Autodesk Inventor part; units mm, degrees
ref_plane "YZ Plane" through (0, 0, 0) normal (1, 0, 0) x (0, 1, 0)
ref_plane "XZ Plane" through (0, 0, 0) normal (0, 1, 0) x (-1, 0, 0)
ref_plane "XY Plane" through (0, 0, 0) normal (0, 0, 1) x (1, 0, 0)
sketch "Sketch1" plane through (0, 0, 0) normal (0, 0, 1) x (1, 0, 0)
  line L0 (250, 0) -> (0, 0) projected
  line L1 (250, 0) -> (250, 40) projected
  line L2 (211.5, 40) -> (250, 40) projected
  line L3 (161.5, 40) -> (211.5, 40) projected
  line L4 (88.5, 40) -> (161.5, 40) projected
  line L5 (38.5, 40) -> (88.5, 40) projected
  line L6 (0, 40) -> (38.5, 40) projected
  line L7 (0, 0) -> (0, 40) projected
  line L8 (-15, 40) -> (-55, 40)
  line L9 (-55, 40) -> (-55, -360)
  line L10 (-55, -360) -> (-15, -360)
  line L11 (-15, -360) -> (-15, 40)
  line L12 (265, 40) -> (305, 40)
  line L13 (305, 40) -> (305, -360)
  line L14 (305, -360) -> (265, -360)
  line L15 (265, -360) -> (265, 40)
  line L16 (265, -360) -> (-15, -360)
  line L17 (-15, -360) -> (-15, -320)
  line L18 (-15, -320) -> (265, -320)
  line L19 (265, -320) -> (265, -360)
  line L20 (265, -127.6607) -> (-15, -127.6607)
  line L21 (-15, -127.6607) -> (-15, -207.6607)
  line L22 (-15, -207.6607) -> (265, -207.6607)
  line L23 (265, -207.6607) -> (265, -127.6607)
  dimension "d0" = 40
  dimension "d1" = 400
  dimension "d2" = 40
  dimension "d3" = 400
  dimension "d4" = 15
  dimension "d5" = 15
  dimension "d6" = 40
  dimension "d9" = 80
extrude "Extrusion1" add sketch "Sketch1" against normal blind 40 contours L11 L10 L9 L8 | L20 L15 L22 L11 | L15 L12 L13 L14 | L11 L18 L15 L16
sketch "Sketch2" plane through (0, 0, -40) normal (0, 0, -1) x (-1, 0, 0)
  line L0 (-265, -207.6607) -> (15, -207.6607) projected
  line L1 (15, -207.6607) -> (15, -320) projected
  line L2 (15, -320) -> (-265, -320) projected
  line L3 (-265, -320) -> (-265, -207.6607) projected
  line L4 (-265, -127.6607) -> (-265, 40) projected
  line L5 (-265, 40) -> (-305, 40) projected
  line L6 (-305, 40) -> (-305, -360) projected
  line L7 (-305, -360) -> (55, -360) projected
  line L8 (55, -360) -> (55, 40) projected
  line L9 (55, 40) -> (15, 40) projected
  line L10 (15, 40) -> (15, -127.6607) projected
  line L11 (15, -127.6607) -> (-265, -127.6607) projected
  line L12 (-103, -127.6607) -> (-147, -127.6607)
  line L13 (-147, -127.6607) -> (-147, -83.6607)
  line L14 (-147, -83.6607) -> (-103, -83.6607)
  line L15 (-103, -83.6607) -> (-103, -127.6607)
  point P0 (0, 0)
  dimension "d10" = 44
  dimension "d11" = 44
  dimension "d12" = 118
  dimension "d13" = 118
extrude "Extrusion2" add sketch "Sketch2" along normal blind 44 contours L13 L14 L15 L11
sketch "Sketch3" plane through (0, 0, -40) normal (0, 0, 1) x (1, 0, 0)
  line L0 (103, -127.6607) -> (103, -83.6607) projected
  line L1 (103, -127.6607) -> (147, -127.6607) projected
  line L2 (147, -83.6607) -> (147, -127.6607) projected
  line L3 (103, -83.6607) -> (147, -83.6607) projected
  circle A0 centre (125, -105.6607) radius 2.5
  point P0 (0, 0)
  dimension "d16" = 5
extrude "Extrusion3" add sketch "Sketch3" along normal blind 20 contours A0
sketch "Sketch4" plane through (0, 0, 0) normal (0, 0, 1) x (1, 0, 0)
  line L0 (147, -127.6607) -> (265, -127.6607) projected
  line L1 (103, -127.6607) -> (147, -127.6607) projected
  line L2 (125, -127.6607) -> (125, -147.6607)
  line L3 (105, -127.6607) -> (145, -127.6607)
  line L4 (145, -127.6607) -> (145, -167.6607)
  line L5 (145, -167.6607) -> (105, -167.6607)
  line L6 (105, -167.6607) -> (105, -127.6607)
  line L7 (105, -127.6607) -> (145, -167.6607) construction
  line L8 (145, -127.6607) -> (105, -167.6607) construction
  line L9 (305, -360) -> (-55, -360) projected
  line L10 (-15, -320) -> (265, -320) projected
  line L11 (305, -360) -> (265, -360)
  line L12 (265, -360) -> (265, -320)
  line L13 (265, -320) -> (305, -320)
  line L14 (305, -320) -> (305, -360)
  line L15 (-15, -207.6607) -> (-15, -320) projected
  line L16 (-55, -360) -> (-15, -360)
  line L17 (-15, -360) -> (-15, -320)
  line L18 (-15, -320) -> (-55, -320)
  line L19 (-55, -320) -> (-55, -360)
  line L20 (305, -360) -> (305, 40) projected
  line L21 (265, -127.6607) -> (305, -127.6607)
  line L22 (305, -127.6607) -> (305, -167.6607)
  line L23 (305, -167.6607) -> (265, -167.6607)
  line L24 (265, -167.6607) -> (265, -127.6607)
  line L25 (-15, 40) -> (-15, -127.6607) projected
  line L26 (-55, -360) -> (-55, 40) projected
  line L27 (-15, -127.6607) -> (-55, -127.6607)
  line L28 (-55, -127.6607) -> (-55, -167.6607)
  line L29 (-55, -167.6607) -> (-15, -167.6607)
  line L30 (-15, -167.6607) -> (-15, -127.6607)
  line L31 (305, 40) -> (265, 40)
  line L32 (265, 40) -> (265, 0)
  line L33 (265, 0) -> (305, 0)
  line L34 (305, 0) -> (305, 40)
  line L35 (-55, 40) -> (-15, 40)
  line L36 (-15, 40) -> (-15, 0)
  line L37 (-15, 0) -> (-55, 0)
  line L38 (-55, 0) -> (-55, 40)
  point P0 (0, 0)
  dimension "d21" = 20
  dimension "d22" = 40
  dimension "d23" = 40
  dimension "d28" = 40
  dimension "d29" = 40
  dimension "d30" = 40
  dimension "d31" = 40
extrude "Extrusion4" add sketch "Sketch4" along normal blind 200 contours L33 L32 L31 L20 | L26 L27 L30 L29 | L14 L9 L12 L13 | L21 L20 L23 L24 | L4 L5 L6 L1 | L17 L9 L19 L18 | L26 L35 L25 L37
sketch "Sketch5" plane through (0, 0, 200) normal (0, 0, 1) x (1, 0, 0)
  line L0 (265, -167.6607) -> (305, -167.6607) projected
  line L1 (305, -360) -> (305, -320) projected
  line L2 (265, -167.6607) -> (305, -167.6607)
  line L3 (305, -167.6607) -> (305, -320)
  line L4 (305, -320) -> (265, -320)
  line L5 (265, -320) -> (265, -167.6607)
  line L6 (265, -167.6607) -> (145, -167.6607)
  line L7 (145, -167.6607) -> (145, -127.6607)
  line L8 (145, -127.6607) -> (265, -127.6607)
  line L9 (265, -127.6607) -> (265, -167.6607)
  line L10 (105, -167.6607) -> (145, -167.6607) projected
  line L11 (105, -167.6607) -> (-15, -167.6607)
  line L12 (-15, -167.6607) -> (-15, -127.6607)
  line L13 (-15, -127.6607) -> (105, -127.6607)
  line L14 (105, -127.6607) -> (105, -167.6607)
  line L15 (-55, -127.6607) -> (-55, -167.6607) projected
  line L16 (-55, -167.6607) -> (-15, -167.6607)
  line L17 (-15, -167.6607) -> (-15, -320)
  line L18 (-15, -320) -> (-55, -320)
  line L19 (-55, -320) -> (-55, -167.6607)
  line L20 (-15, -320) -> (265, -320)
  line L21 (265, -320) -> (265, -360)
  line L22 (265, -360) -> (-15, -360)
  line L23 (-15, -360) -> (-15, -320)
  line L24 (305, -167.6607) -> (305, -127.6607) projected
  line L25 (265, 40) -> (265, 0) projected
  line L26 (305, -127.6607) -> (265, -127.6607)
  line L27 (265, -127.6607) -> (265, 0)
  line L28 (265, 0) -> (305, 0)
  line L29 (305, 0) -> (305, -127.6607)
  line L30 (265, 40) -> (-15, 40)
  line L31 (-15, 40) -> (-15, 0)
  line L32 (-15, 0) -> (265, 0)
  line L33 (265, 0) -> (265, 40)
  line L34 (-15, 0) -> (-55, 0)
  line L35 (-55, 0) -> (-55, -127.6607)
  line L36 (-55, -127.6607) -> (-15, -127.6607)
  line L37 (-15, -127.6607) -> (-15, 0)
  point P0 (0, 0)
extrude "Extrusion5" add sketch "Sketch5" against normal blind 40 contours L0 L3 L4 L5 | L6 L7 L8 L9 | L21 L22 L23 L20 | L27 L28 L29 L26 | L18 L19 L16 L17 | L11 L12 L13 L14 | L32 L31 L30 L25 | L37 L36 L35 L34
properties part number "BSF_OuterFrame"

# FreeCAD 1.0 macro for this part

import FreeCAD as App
import Part
import Sketcher
from FreeCAD import Vector
Q = App.Units.Quantity


def add_polygon(sketch, points):
    """Adds a closed chain of lines whose ends are joined by coincident constraints."""
    first, n = sketch.GeometryCount, len(points)
    for a, b in zip(points, points[1:] + points[:1]):
        sketch.addGeometry(Part.LineSegment(App.Vector(*a, 0), App.Vector(*b, 0)), False)
    for i in range(n):
        sketch.addConstraint(Sketcher.Constraint("Coincident", first + i, 2, first + (i + 1) % n, 1))

doc = App.newDocument("Part")
body = doc.addObject("PartDesign::Body", "Body")
body.AllowCompound = True

# Sketch on XY plane
sketch1 = body.newObject("Sketcher::SketchObject", "Sketch")
sketch1.AttachmentSupport = (doc.getObject("XY_Plane"), [""])
sketch1.MapMode = "FlatFace"
add_polygon(sketch1, [(-15, -128), (-15, 40), (-55, 40), (-55, -360), (305, -360), (305, 40), (265, 40), (265, -128)])  # lines 0-7
add_polygon(sketch1, [(-15, -320), (-15, -208), (265, -208), (265, -320)])  # lines 8-11
sketch1.addConstraint(Sketcher.Constraint("Vertical", 0))
sketch1.addConstraint(Sketcher.Constraint("Horizontal", 1))
sketch1.addConstraint(Sketcher.Constraint("Vertical", 2))
sketch1.addConstraint(Sketcher.Constraint("Horizontal", 3))
sketch1.addConstraint(Sketcher.Constraint("Vertical", 4))
sketch1.addConstraint(Sketcher.Constraint("Horizontal", 5))
sketch1.addConstraint(Sketcher.Constraint("Vertical", 6))
sketch1.addConstraint(Sketcher.Constraint("Horizontal", 7))
sketch1.addConstraint(Sketcher.Constraint("Vertical", 8))
sketch1.addConstraint(Sketcher.Constraint("Horizontal", 9))
sketch1.addConstraint(Sketcher.Constraint("Vertical", 10))
sketch1.addConstraint(Sketcher.Constraint("Horizontal", 11))
sketch1.addConstraint(Sketcher.Constraint("Horizontal", 1, 2, 4, 2))
sketch1.addConstraint(Sketcher.Constraint("Vertical", 7, 2, 8, 2))
sketch1.addConstraint(Sketcher.Constraint("Vertical", 6, 2, 9, 2))
sketch1.addConstraint(Sketcher.Constraint("Equal", 1, 5))
sketch1.addConstraint(Sketcher.Constraint("DistanceX", 1, 2, 1, 1, Q("40 mm")))
sketch1.addConstraint(Sketcher.Constraint("DistanceY", 2, 2, 2, 1, Q("400 mm")))
sketch1.addConstraint(Sketcher.Constraint("DistanceX", 0, 2, -1, 1, Q("15 mm")))
sketch1.addConstraint(Sketcher.Constraint("DistanceY", -1, 1, 0, 2, Q("40 mm")))
sketch1.addConstraint(Sketcher.Constraint("DistanceY", 8, 2, 7, 2, Q("80 mm")))
sketch1.addConstraint(Sketcher.Constraint("DistanceY", 3, 2, 10, 2, Q("40 mm")))
sketch1.addConstraint(Sketcher.Constraint("DistanceX", 3, 1, 3, 2, Q("360 mm")))
sketch1.addConstraint(Sketcher.Constraint("DistanceY", 0, 1, 0, 2, Q("167.6607 mm")))
pad1 = body.newObject("PartDesign::Pad", "Pad")
pad1.Profile = sketch1
pad1.Length = 40
pad1.Reversed = True

# Sketch on XY plane
sketch2 = body.newObject("Sketcher::SketchObject", "Sketch001")
sketch2.AttachmentSupport = (doc.getObject("XY_Plane"), [""])
sketch2.MapMode = "FlatFace"
sketch2.AttachmentOffset = App.Placement(Vector(0, 0, -40), App.Rotation())
add_polygon(sketch2, [(147, -84), (147, -128), (103, -128), (103, -84)])  # lines 0-3
sketch2.addConstraint(Sketcher.Constraint("Vertical", 0))
sketch2.addConstraint(Sketcher.Constraint("Horizontal", 1))
sketch2.addConstraint(Sketcher.Constraint("Vertical", 2))
sketch2.addConstraint(Sketcher.Constraint("Horizontal", 3))
sketch2.addConstraint(Sketcher.Constraint("Equal", 3, 0))
sketch2.addConstraint(Sketcher.Constraint("DistanceX", 1, 2, 1, 1, Q("44 mm")))
sketch2.addConstraint(Sketcher.Constraint("DistanceX", -1, 1, 0, 2, Q("147 mm")))
sketch2.addConstraint(Sketcher.Constraint("DistanceY", 0, 2, -1, 1, Q("127.6607 mm")))
pad2 = body.newObject("PartDesign::Pad", "Pad001")
pad2.Profile = sketch2
pad2.Length = 44
pad2.Reversed = True

# Sketch on XY plane
sketch3 = body.newObject("Sketcher::SketchObject", "Sketch002")
sketch3.AttachmentSupport = (doc.getObject("XY_Plane"), [""])
sketch3.MapMode = "FlatFace"
sketch3.AttachmentOffset = App.Placement(Vector(0, 0, -40), App.Rotation())
sketch3.addGeometry(Part.Circle(Vector(125, -105.7, 0), Vector(0, 0, 1), 2.5), False)
sketch3.addConstraint(Sketcher.Constraint("Diameter", 0, Q("5 mm")))
sketch3.addConstraint(Sketcher.Constraint("DistanceX", -1, 1, 0, 3, Q("125 mm")))
sketch3.addConstraint(Sketcher.Constraint("DistanceY", 0, 3, -1, 1, Q("105.6607 mm")))
pad3 = body.newObject("PartDesign::Pad", "Pad002")
pad3.Profile = sketch3
pad3.Length = 20

# Sketch on XY plane
sketch4 = body.newObject("Sketcher::SketchObject", "Sketch003")
sketch4.AttachmentSupport = (doc.getObject("XY_Plane"), [""])
sketch4.MapMode = "FlatFace"
add_polygon(sketch4, [(265, 0), (305, 0), (305, 40), (265, 40)])  # lines 0-3
add_polygon(sketch4, [(-55, -128), (-55, -168), (-15, -168), (-15, -128)])  # lines 4-7
add_polygon(sketch4, [(305, -360), (305, -320), (265, -320), (265, -360)])  # lines 8-11
add_polygon(sketch4, [(305, -128), (265, -128), (265, -168), (305, -168)])  # lines 12-15
add_polygon(sketch4, [(145, -168), (145, -128), (105, -128), (105, -168)])  # lines 16-19
add_polygon(sketch4, [(-15, -360), (-15, -320), (-55, -320), (-55, -360)])  # lines 20-23
add_polygon(sketch4, [(-55, 40), (-55, 0), (-15, 0), (-15, 40)])  # lines 24-27
sketch4.addConstraint(Sketcher.Constraint("Horizontal", 0))
sketch4.addConstraint(Sketcher.Constraint("Vertical", 1))
sketch4.addConstraint(Sketcher.Constraint("Horizontal", 2))
sketch4.addConstraint(Sketcher.Constraint("Vertical", 3))
sketch4.addConstraint(Sketcher.Constraint("Vertical", 4))
sketch4.addConstraint(Sketcher.Constraint("Horizontal", 5))
sketch4.addConstraint(Sketcher.Constraint("Vertical", 6))
sketch4.addConstraint(Sketcher.Constraint("Horizontal", 7))
sketch4.addConstraint(Sketcher.Constraint("Vertical", 8))
sketch4.addConstraint(Sketcher.Constraint("Horizontal", 9))
sketch4.addConstraint(Sketcher.Constraint("Vertical", 10))
sketch4.addConstraint(Sketcher.Constraint("Horizontal", 11))
sketch4.addConstraint(Sketcher.Constraint("Horizontal", 12))
sketch4.addConstraint(Sketcher.Constraint("Vertical", 13))
sketch4.addConstraint(Sketcher.Constraint("Horizontal", 14))
sketch4.addConstraint(Sketcher.Constraint("Vertical", 15))
sketch4.addConstraint(Sketcher.Constraint("Vertical", 16))
sketch4.addConstraint(Sketcher.Constraint("Horizontal", 17))
sketch4.addConstraint(Sketcher.Constraint("Vertical", 18))
sketch4.addConstraint(Sketcher.Constraint("Horizontal", 19))
sketch4.addConstraint(Sketcher.Constraint("Vertical", 20))
sketch4.addConstraint(Sketcher.Constraint("Horizontal", 21))
sketch4.addConstraint(Sketcher.Constraint("Vertical", 22))
sketch4.addConstraint(Sketcher.Constraint("Horizontal", 23))
sketch4.addConstraint(Sketcher.Constraint("Vertical", 24))
sketch4.addConstraint(Sketcher.Constraint("Horizontal", 25))
sketch4.addConstraint(Sketcher.Constraint("Vertical", 26))
sketch4.addConstraint(Sketcher.Constraint("Horizontal", 27))
sketch4.addConstraint(Sketcher.Constraint("PointOnObject", 0, 2, -1))
sketch4.addConstraint(Sketcher.Constraint("PointOnObject", 24, 2, -1))
sketch4.addConstraint(Sketcher.Constraint("Horizontal", 7, 2, 12, 2))
sketch4.addConstraint(Sketcher.Constraint("Horizontal", 5, 2, 13, 2))
sketch4.addConstraint(Sketcher.Constraint("Horizontal", 15, 2, 16, 2))
sketch4.addConstraint(Sketcher.Constraint("Horizontal", 14, 2, 18, 2))
sketch4.addConstraint(Sketcher.Constraint("Horizontal", 9, 2, 20, 2))
sketch4.addConstraint(Sketcher.Constraint("Horizontal", 11, 2, 22, 2))
sketch4.addConstraint(Sketcher.Constraint("Horizontal", 2, 2, 26, 2))
sketch4.addConstraint(Sketcher.Constraint("Vertical", 1, 2, 8, 2))
sketch4.addConstraint(Sketcher.Constraint("Vertical", 3, 2, 9, 2))
sketch4.addConstraint(Sketcher.Constraint("Vertical", 10, 2, 12, 2))
sketch4.addConstraint(Sketcher.Constraint("Vertical", 11, 2, 14, 2))
sketch4.addConstraint(Sketcher.Constraint("Vertical", 6, 2, 20, 2))
sketch4.addConstraint(Sketcher.Constraint("Vertical", 7, 2, 21, 2))
sketch4.addConstraint(Sketcher.Constraint("Vertical", 22, 2, 24, 2))
sketch4.addConstraint(Sketcher.Constraint("Vertical", 23, 2, 25, 2))
sketch4.addConstraint(Sketcher.Constraint("Equal", 2, 5))
sketch4.addConstraint(Sketcher.Constraint("Equal", 14, 17))
sketch4.addConstraint(Sketcher.Constraint("Equal", 27, 1))
sketch4.addConstraint(Sketcher.Constraint("Equal", 3, 4))
sketch4.addConstraint(Sketcher.Constraint("Equal", 6, 8))
sketch4.addConstraint(Sketcher.Constraint("DistanceX", 0, 1, 0, 2, Q("40 mm")))
sketch4.addConstraint(Sketcher.Constraint("DistanceX", -1, 1, 0, 2, Q("305 mm")))
sketch4.addConstraint(Sketcher.Constraint("DistanceX", 4, 2, -1, 1, Q("55 mm")))
sketch4.addConstraint(Sketcher.Constraint("DistanceY", 8, 2, -1, 1, Q("320 mm")))
sketch4.addConstraint(Sketcher.Constraint("DistanceX", -1, 1, 16, 2, Q("145 mm")))
sketch4.addConstraint(Sketcher.Constraint("DistanceY", 4, 2, -1, 1, Q("167.6607 mm")))
pad4 = body.newObject("PartDesign::Pad", "Pad003")
pad4.Profile = sketch4
pad4.Length = 200

# Sketch on XY plane
sketch5 = body.newObject("Sketcher::SketchObject", "Sketch004")
sketch5.AttachmentSupport = (doc.getObject("XY_Plane"), [""])
sketch5.MapMode = "FlatFace"
sketch5.AttachmentOffset = App.Placement(Vector(0, 0, 200), App.Rotation())
add_polygon(sketch5, [(305, -168), (265, -168), (265, -320), (305, -320)])  # lines 0-3
add_polygon(sketch5, [(145, -168), (265, -168), (265, -128), (145, -128)])  # lines 4-7
add_polygon(sketch5, [(265, -360), (265, -320), (-15, -320), (-15, -360)])  # lines 8-11
add_polygon(sketch5, [(265, 0), (265, -128), (305, -128), (305, 0)])  # lines 12-15
add_polygon(sketch5, [(-55, -320), (-15, -320), (-15, -168), (-55, -168)])  # lines 16-19
add_polygon(sketch5, [(-15, -168), (105, -168), (105, -128), (-15, -128)])  # lines 20-23
add_polygon(sketch5, [(-15, 0), (265, 0), (265, 40), (-15, 40)])  # lines 24-27
add_polygon(sketch5, [(-15, -128), (-15, 0), (-55, 0), (-55, -128)])  # lines 28-31
sketch5.addConstraint(Sketcher.Constraint("Horizontal", 0))
sketch5.addConstraint(Sketcher.Constraint("Vertical", 1))
sketch5.addConstraint(Sketcher.Constraint("Horizontal", 2))
sketch5.addConstraint(Sketcher.Constraint("Vertical", 3))
sketch5.addConstraint(Sketcher.Constraint("Horizontal", 4))
sketch5.addConstraint(Sketcher.Constraint("Vertical", 5))
sketch5.addConstraint(Sketcher.Constraint("Horizontal", 6))
sketch5.addConstraint(Sketcher.Constraint("Vertical", 7))
sketch5.addConstraint(Sketcher.Constraint("Vertical", 8))
sketch5.addConstraint(Sketcher.Constraint("Horizontal", 9))
sketch5.addConstraint(Sketcher.Constraint("Vertical", 10))
sketch5.addConstraint(Sketcher.Constraint("Horizontal", 11))
sketch5.addConstraint(Sketcher.Constraint("Vertical", 12))
sketch5.addConstraint(Sketcher.Constraint("Horizontal", 13))
sketch5.addConstraint(Sketcher.Constraint("Vertical", 14))
sketch5.addConstraint(Sketcher.Constraint("Horizontal", 15))
sketch5.addConstraint(Sketcher.Constraint("Horizontal", 16))
sketch5.addConstraint(Sketcher.Constraint("Vertical", 17))
sketch5.addConstraint(Sketcher.Constraint("Horizontal", 18))
sketch5.addConstraint(Sketcher.Constraint("Vertical", 19))
sketch5.addConstraint(Sketcher.Constraint("Horizontal", 20))
sketch5.addConstraint(Sketcher.Constraint("Vertical", 21))
sketch5.addConstraint(Sketcher.Constraint("Horizontal", 22))
sketch5.addConstraint(Sketcher.Constraint("Vertical", 23))
sketch5.addConstraint(Sketcher.Constraint("Horizontal", 24))
sketch5.addConstraint(Sketcher.Constraint("Vertical", 25))
sketch5.addConstraint(Sketcher.Constraint("Horizontal", 26))
sketch5.addConstraint(Sketcher.Constraint("Vertical", 27))
sketch5.addConstraint(Sketcher.Constraint("Vertical", 28))
sketch5.addConstraint(Sketcher.Constraint("Horizontal", 29))
sketch5.addConstraint(Sketcher.Constraint("Vertical", 30))
sketch5.addConstraint(Sketcher.Constraint("Horizontal", 31))
sketch5.addConstraint(Sketcher.Constraint("Coincident", 4, 2, 0, 2))
sketch5.addConstraint(Sketcher.Constraint("Coincident", 8, 2, 1, 2))
sketch5.addConstraint(Sketcher.Constraint("Coincident", 12, 2, 5, 2))
sketch5.addConstraint(Sketcher.Constraint("Coincident", 16, 2, 9, 2))
sketch5.addConstraint(Sketcher.Constraint("Coincident", 23, 2, 17, 2))
sketch5.addConstraint(Sketcher.Constraint("Coincident", 24, 2, 15, 2))
sketch5.addConstraint(Sketcher.Constraint("Coincident", 28, 2, 27, 2))
sketch5.addConstraint(Sketcher.Constraint("Coincident", 31, 2, 22, 2))
sketch5.addConstraint(Sketcher.Constraint("PointOnObject", 14, 2, -1))
sketch5.addConstraint(Sketcher.Constraint("Horizontal", 7, 2, 17, 2))
sketch5.addConstraint(Sketcher.Constraint("Horizontal", 13, 2, 21, 2))
sketch5.addConstraint(Sketcher.Constraint("Vertical", 3, 2, 13, 2))
sketch5.addConstraint(Sketcher.Constraint("Vertical", 19, 2, 29, 2))
sketch5.addConstraint(Sketcher.Constraint("Equal", 15, 16))
sketch5.addConstraint(Sketcher.Constraint("Equal", 6, 20))
sketch5.addConstraint(Sketcher.Constraint("Equal", 31, 5))
sketch5.addConstraint(Sketcher.Constraint("Equal", 7, 8))
sketch5.addConstraint(Sketcher.Constraint("Equal", 23, 25))
sketch5.addConstraint(Sketcher.Constraint("DistanceX", 0, 2, 0, 1, Q("40 mm")))
sketch5.addConstraint(Sketcher.Constraint("DistanceX", 4, 1, 4, 2, Q("120 mm")))
sketch5.addConstraint(Sketcher.Constraint("DistanceX", 9, 2, 9, 1, Q("280 mm")))
sketch5.addConstraint(Sketcher.Constraint("DistanceX", -1, 1, 0, 2, Q("265 mm")))
sketch5.addConstraint(Sketcher.Constraint("DistanceY", 1, 2, -1, 1, Q("320 mm")))
sketch5.addConstraint(Sketcher.Constraint("DistanceY", 1, 2, 1, 1, Q("152.3393 mm")))
pad5 = body.newObject("PartDesign::Pad", "Pad004")
pad5.Profile = sketch5
pad5.Length = 40
pad5.Reversed = True

doc.recompute()
